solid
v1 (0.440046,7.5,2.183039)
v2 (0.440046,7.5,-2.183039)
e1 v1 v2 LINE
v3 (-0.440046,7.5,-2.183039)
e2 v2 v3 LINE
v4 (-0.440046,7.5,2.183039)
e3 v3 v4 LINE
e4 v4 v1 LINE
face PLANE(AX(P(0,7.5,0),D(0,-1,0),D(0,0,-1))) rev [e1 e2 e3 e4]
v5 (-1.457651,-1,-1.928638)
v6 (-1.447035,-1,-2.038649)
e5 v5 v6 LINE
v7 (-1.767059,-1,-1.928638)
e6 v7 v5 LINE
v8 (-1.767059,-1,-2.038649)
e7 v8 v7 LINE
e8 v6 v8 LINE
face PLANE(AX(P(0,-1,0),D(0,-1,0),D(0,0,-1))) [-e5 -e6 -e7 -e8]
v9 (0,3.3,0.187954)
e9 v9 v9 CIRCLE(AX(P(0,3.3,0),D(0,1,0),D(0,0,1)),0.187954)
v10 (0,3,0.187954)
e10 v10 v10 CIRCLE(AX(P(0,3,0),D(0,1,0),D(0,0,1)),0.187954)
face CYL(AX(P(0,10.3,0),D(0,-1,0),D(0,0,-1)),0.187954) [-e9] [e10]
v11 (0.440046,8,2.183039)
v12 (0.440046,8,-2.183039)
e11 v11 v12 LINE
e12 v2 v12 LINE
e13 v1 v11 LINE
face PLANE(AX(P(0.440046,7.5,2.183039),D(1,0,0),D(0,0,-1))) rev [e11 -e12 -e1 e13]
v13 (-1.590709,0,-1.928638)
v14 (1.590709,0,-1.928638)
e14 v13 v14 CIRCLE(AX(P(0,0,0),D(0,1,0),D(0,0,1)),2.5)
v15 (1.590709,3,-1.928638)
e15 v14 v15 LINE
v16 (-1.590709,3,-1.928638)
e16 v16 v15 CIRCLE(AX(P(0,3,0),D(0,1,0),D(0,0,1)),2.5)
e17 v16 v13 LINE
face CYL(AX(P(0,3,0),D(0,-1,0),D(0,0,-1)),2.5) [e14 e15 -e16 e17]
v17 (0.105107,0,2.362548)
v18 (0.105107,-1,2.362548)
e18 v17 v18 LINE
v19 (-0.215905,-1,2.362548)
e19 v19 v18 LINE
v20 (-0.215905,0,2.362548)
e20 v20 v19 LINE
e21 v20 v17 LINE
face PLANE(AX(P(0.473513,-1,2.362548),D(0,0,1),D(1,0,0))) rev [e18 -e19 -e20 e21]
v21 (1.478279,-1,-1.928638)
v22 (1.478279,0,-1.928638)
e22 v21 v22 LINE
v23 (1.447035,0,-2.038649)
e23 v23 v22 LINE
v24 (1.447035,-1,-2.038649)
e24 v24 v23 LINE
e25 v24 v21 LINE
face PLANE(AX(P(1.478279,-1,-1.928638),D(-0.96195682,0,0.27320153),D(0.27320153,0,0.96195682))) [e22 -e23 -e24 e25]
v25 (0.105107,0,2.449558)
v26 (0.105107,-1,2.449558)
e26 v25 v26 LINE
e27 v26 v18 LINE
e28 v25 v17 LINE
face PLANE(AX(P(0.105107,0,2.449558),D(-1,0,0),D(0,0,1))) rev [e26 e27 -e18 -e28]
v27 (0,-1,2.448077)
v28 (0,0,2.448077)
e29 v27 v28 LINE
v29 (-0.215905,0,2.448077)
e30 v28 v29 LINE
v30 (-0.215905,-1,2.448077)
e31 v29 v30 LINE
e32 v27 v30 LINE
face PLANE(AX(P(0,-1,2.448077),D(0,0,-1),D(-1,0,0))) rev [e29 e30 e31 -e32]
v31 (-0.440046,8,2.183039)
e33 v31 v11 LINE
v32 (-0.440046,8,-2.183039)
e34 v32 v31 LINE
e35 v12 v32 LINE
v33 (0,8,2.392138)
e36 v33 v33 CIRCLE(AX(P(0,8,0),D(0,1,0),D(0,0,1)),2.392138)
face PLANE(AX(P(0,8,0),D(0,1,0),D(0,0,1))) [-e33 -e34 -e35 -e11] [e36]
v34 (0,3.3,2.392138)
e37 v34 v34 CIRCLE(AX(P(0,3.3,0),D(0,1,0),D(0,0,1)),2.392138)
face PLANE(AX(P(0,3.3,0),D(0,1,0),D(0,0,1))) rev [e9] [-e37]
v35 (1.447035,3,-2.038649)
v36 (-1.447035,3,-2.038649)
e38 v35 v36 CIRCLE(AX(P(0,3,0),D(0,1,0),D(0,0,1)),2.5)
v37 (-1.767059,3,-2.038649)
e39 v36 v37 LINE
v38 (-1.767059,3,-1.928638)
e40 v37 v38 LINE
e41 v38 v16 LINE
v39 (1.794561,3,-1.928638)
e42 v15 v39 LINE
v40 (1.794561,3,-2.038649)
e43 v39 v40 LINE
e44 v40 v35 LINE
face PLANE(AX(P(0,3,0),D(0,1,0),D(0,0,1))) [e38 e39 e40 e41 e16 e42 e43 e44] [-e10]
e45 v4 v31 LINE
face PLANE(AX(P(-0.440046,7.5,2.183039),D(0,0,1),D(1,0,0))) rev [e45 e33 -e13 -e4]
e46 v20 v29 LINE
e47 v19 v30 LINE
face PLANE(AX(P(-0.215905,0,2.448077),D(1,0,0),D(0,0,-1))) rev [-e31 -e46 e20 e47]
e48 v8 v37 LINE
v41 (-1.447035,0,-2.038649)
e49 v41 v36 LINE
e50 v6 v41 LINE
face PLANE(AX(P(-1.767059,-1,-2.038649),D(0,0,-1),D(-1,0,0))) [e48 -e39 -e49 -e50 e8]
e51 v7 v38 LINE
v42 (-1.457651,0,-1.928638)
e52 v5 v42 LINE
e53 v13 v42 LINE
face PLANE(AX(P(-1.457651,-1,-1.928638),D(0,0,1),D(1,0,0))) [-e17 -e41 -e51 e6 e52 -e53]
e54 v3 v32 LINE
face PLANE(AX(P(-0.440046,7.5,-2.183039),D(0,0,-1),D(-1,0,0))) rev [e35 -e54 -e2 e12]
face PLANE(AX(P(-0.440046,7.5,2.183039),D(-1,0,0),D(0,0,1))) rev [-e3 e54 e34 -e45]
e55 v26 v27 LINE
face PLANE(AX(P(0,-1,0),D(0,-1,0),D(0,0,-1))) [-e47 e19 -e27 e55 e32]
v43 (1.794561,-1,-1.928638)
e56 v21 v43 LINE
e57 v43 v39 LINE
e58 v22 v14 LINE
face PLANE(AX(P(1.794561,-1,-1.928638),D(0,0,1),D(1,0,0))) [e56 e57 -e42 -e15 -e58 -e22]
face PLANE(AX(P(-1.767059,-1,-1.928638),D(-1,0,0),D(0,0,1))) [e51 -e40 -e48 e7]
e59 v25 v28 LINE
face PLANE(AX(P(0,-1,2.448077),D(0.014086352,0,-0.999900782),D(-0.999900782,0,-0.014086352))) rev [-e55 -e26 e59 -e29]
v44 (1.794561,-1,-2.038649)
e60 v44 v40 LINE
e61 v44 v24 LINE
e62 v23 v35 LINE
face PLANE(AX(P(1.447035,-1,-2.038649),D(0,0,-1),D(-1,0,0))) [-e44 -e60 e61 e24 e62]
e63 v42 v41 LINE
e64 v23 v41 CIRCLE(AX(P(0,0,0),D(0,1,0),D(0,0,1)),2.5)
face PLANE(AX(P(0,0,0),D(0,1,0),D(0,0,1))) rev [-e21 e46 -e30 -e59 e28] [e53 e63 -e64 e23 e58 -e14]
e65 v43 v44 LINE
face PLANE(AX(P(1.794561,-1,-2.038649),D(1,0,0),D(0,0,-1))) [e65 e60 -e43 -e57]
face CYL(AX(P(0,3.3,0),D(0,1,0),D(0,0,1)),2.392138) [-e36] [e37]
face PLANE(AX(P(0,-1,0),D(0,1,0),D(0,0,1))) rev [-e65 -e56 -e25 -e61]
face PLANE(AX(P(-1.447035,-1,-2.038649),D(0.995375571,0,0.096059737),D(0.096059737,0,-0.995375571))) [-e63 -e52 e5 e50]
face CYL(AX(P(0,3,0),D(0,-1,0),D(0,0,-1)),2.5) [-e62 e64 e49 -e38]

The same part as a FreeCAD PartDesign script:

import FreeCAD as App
import Part
import Sketcher
Q = App.Units.Quantity


def add_polygon(sketch, points):
    """Adds a closed chain of lines whose ends are joined by coincident constraints."""
    first, n = sketch.GeometryCount, len(points)
    for a, b in zip(points, points[1:] + points[:1]):
        sketch.addGeometry(Part.LineSegment(App.Vector(*a, 0), App.Vector(*b, 0)), False)
    for i in range(n):
        sketch.addConstraint(Sketcher.Constraint("Coincident", first + i, 2, first + (i + 1) % n, 1))

doc = App.newDocument("Part")
body = doc.addObject("PartDesign::Body", "Body")

# Sketch on XZ plane
sketch1 = body.newObject("Sketcher::SketchObject", "Sketch")
sketch1.AttachmentSupport = (doc.getObject("XZ_Plane"), [""])
sketch1.MapMode = "FlatFace"
sketch1.addGeometry(Part.Circle(App.Vector(0, 0, 0), App.Vector(0, 0, 1), 2.5), False)
sketch1.addConstraint([
    Sketcher.Constraint("Coincident", 0, 3, -1, 1),
    Sketcher.Constraint("Diameter", 0, Q("5 mm")),
])
pad1 = body.newObject("PartDesign::Pad", "Pad")
pad1.Profile = sketch1
pad1.Length = 3
pad1.Reversed = True

# Sketch on XZ plane
sketch2 = body.newObject("Sketcher::SketchObject", "Sketch001")
sketch2.AttachmentSupport = (doc.getObject("XZ_Plane"), [""])
sketch2.MapMode = "FlatFace"
sketch2.AttachmentOffset = App.Placement(App.Vector(0, 0, -3), App.Rotation())
sketch2.addGeometry(Part.Circle(App.Vector(0, 0, 0), App.Vector(0, 0, 1), 0.187954), False)
sketch2.addConstraint([
    Sketcher.Constraint("Coincident", 0, 3, -1, 1),
    Sketcher.Constraint("Diameter", 0, Q("0.375907 mm")),
])
pad2 = body.newObject("PartDesign::Pad", "Pad001")
pad2.Profile = sketch2
pad2.Length = 7.3
pad2.Reversed = True

# Sketch on XZ plane
sketch3 = body.newObject("Sketcher::SketchObject", "Sketch002")
sketch3.AttachmentSupport = (doc.getObject("XZ_Plane"), [""])
sketch3.MapMode = "FlatFace"
sketch3.AttachmentOffset = App.Placement(App.Vector(0, 0, -8), App.Rotation())
sketch3.addGeometry(Part.Circle(App.Vector(0, 0, 0), App.Vector(0, 0, 1), 0.187954), False)
sketch3.addConstraint([
    Sketcher.Constraint("Coincident", 0, 3, -1, 1),
    Sketcher.Constraint("Diameter", 0, Q("0.375907 mm")),
])
pocket1 = body.newObject("PartDesign::Pocket", "Pocket")
pocket1.Profile = sketch3
pocket1.Length = 2.3

# Sketch on XZ plane
sketch4 = body.newObject("Sketcher::SketchObject", "Sketch003")
sketch4.AttachmentSupport = (doc.getObject("XZ_Plane"), [""])
sketch4.MapMode = "FlatFace"
sketch4.AttachmentOffset = App.Placement(App.Vector(0, 0, -8), App.Rotation())
sketch4.addGeometry(Part.Circle(App.Vector(0, 0, 0), App.Vector(0, 0, 1), 2.392138), False)
sketch4.addConstraint([
    Sketcher.Constraint("Coincident", 0, 3, -1, 1),
    Sketcher.Constraint("Diameter", 0, Q("4.784277 mm")),
])
pad3 = body.newObject("PartDesign::Pad", "Pad002")
pad3.Profile = sketch4
pad3.Length = 4.7

# Sketch on XZ plane
sketch5 = body.newObject("Sketcher::SketchObject", "Sketch004")
sketch5.AttachmentSupport = (doc.getObject("XZ_Plane"), [""])
sketch5.MapMode = "FlatFace"
sketch5.AttachmentOffset = App.Placement(App.Vector(0, 0, -8), App.Rotation())
add_polygon(sketch5, [(-0.440046, -2.183039), (-0.440046, 2.183039), (0.440046, 2.183039), (0.440046, -2.183039)])  # lines 0-3
sketch5.addConstraint([
    Sketcher.Constraint("Vertical", 0),
    Sketcher.Constraint("Horizontal", 1),
    Sketcher.Constraint("Vertical", 2),
    Sketcher.Constraint("Horizontal", 3),
    Sketcher.Constraint("Symmetric", 0, 2, 2, 2, -1, 1),
    Sketcher.Constraint("DistanceX", 1, 1, 1, 2, Q("0.880091 mm")),
    Sketcher.Constraint("DistanceY", 0, 1, 0, 2, Q("4.366078 mm")),
])
pocket2 = body.newObject("PartDesign::Pocket", "Pocket001")
pocket2.Profile = sketch5
pocket2.Length = 0.5
pocket2.Reversed = True

# Sketch on XZ plane
sketch6 = body.newObject("Sketcher::SketchObject", "Sketch005")
sketch6.AttachmentSupport = (doc.getObject("XZ_Plane"), [""])
sketch6.MapMode = "FlatFace"
add_polygon(sketch6, [(0.473513, 2.454748), (0, 2.448077), (-0.506872, 2.448077), (-0.506872, 2.362548), (0.473513, 2.362548)])  # lines 0-4
sketch6.addConstraint([
    Sketcher.Constraint("Horizontal", 1),
    Sketcher.Constraint("Vertical", 2),
    Sketcher.Constraint("Horizontal", 3),
    Sketcher.Constraint("Vertical", 4),
    Sketcher.Constraint("PointOnObject", 0, 2, -2),
    Sketcher.Constraint("DistanceY", 4, 1, 4, 2, Q("0.0922 mm")),
    Sketcher.Constraint("DistanceY", 2, 2, 2, 1, Q("0.085529 mm")),
    Sketcher.Constraint("Distance", 0, Q("0.47356 mm")),
    Sketcher.Constraint("DistanceX", 1, 2, 1, 1, Q("0.506872 mm")),
    Sketcher.Constraint("DistanceY", -1, 1, 0, 2, Q("2.448077 mm")),
])
pad4 = body.newObject("PartDesign::Pad", "Pad003")
pad4.Profile = sketch6
pad4.Length = 1

# Sketch on XZ plane
sketch7 = body.newObject("Sketcher::SketchObject", "Sketch006")
sketch7.AttachmentSupport = (doc.getObject("XZ_Plane"), [""])
sketch7.MapMode = "FlatFace"
sketch7.AttachmentOffset = App.Placement(App.Vector(0, 0, -3), App.Rotation())
add_polygon(sketch7, [(-1.767059, -1.928638), (-1.457651, -1.928638), (-1.447035, -2.038649), (-1.767059, -2.038649)])  # lines 0-3
add_polygon(sketch7, [(1.447035, -2.038649), (1.478279, -1.928638), (1.794561, -1.928638), (1.794561, -2.038649)])  # lines 4-7
sketch7.addConstraint([
    Sketcher.Constraint("Horizontal", 0),
    Sketcher.Constraint("Horizontal", 2),
    Sketcher.Constraint("Vertical", 3),
    Sketcher.Constraint("Horizontal", 5),
    Sketcher.Constraint("Vertical", 6),
    Sketcher.Constraint("Horizontal", 7),
    Sketcher.Constraint("Symmetric", 1, 2, 7, 2, -2),
    Sketcher.Constraint("Horizontal", 3, 2, 4, 2),
    Sketcher.Constraint("DistanceY", 3, 1, 3, 2, Q("0.110011 mm")),
    Sketcher.Constraint("DistanceX", 0, 1, 0, 2, Q("0.309407 mm")),
    Sketcher.Constraint("DistanceX", 2, 2, 2, 1, Q("0.320024 mm")),
    Sketcher.Constraint("DistanceX", 5, 1, 5, 2, Q("0.316283 mm")),
    Sketcher.Constraint("DistanceX", 7, 2, 7, 1, Q("0.347527 mm")),
    Sketcher.Constraint("DistanceX", 0, 2, -1, 1, Q("1.457651 mm")),
    Sketcher.Constraint("DistanceY", 1, 2, -1, 1, Q("2.038649 mm")),
])
pad5 = body.newObject("PartDesign::Pad", "Pad004")
pad5.Profile = sketch7
pad5.Length = 4

# Sketch on XZ plane
sketch8 = body.newObject("Sketcher::SketchObject", "Sketch007")
sketch8.AttachmentSupport = (doc.getObject("XZ_Plane"), [""])
sketch8.MapMode = "FlatFace"
sketch8.AttachmentOffset = App.Placement(App.Vector(0, 0, 1), App.Rotation())
add_polygon(sketch8, [(-0.506872, 2.448077), (-0.506872, 2.362548), (-0.215905, 2.362548), (-0.215905, 2.448077)])  # lines 0-3
add_polygon(sketch8, [(0.105107, 2.449558), (0.105107, 2.362548), (0.473513, 2.362548), (0.473513, 2.454748)])  # lines 4-7
sketch8.addConstraint([
    Sketcher.Constraint("Vertical", 0),
    Sketcher.Constraint("Horizontal", 1),
    Sketcher.Constraint("Vertical", 2),
    Sketcher.Constraint("Horizontal", 3),
    Sketcher.Constraint("Vertical", 4),
    Sketcher.Constraint("Horizontal", 5),
    Sketcher.Constraint("Vertical", 6),
    Sketcher.Constraint("Horizontal", 1, 2, 4, 2),
    Sketcher.Constraint("DistanceY", 6, 1, 6, 2, Q("0.0922 mm")),
    Sketcher.Constraint("DistanceY", 0, 2, 0, 1, Q("0.085529 mm")),
    Sketcher.Constraint("DistanceY", 4, 2, 4, 1, Q("0.08701 mm")),
    Sketcher.Constraint("DistanceX", 1, 1, 1, 2, Q("0.290967 mm")),
    Sketcher.Constraint("DistanceX", 5, 1, 5, 2, Q("0.368406 mm")),
    Sketcher.Constraint("DistanceX", 1, 2, 4, 2, Q("0.321012 mm")),
    Sketcher.Constraint("DistanceX", 0, 2, -1, 1, Q("0.506872 mm")),
    Sketcher.Constraint("DistanceY", -1, 1, 0, 2, Q("2.362548 mm")),
])
pocket3 = body.newObject("PartDesign::Pocket", "Pocket002")
pocket3.Profile = sketch8
pocket3.Length = 1

doc.recompute()
